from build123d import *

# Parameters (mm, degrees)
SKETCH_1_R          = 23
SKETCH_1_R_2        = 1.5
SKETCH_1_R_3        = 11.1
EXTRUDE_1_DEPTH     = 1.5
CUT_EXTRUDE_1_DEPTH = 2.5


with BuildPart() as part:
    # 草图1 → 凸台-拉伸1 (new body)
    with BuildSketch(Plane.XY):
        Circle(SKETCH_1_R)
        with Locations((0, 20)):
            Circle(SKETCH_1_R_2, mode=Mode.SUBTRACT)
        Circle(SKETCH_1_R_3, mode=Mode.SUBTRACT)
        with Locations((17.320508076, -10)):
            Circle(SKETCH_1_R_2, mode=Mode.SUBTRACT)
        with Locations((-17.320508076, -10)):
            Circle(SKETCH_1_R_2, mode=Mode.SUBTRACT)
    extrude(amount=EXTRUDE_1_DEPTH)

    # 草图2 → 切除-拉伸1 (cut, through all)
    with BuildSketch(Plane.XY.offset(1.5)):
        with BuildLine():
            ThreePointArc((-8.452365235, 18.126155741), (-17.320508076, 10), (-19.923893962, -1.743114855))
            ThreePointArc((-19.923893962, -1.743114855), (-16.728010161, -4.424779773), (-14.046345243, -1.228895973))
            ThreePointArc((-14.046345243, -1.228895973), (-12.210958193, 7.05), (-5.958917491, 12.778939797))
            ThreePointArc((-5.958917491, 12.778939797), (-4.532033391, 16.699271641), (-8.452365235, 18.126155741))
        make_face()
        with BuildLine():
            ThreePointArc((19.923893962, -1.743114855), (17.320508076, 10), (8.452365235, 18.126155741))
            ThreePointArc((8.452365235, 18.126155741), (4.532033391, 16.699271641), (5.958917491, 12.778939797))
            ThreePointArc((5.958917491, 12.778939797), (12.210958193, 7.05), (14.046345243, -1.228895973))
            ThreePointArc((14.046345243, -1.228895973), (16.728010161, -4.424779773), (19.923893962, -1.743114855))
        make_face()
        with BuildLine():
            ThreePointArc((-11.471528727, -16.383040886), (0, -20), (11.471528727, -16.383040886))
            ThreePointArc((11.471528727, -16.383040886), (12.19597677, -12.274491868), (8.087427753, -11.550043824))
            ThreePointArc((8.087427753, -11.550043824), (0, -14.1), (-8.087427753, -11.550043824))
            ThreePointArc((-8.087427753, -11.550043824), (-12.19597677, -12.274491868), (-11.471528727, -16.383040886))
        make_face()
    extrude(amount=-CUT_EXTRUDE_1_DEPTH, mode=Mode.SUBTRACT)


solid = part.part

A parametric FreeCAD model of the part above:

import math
import FreeCAD as App
import Part
import Sketcher

V = App.Vector

doc = App.newDocument("Part")
body = doc.addObject("PartDesign::Body", "Body")

sketch1 = doc.addObject("Sketcher::SketchObject", "Sketch")
body.addObject(sketch1)
sketch1.AttachmentSupport = (doc.XY_Plane, [""])
sketch1.MapMode = "FlatFace"
sketch1.addGeometry([
    Part.Circle(V(0, 0, 0), V(0, 0, 1), 23),
    Part.Circle(V(-17.320508, -10, 0), V(0, 0, 1), 1.5),
    Part.Circle(V(17.320508, -10, 0), V(0, 0, 1), 1.5),
    Part.Circle(V(0, 0, 0), V(0, 0, 1), 11.1),
    Part.Circle(V(0, 20, 0), V(0, 0, 1), 1.5),
], False)
sketch1.addConstraint([
    Sketcher.Constraint("Coincident", 0, 3, -1, 1),
    Sketcher.Constraint("Coincident", 3, 3, -1, 1),
    Sketcher.Constraint("Equal", 1, 2),
    Sketcher.Constraint("Equal", 2, 4),
    Sketcher.Constraint("Symmetric", 1, 3, 2, 3, -2),
    Sketcher.Constraint("PointOnObject", 4, 3, -2),
    Sketcher.Constraint("Diameter", 0, 46.0),
    Sketcher.Constraint("Diameter", 1, 3.0),
    Sketcher.Constraint("Diameter", 3, 22.2),
    Sketcher.Constraint("DistanceY", 1, 3, -1, 1, 10.0),
    Sketcher.Constraint("DistanceY", -1, 1, 4, 3, 20.0),
    Sketcher.Constraint("DistanceX", 1, 3, -1, 1, 17.320508),
])
pad1 = doc.addObject("PartDesign::Pad", "Pad")
body.addObject(pad1)
pad1.Profile = sketch1
pad1.Length = 1.5

sketch2 = doc.addObject("Sketcher::SketchObject", "Sketch001")
body.addObject(sketch2)
sketch2.AttachmentSupport = (doc.XY_Plane, [""])
sketch2.MapMode = "FlatFace"
sketch2.AttachmentOffset = App.Placement(V(0, 0, 1.5), App.Rotation())
sketch2.addGeometry([
    Part.ArcOfCircle(Part.Circle(V(0, 0, 0), V(0, 0, 1), 20), math.radians(115), math.radians(185)),
    Part.ArcOfCircle(Part.Circle(V(-16.98512, -1.486005, 0), V(0, 0, 1), 2.95), math.radians(-175), math.radians(5)),
    Part.ArcOfCircle(Part.Circle(V(0, 0, 0), V(0, 0, 1), 14.1), math.radians(115), math.radians(185)),
    Part.ArcOfCircle(Part.Circle(V(-7.205641, 15.452548, 0), V(0, 0, 1), 2.95), math.radians(-65), math.radians(115)),
    Part.ArcOfCircle(Part.Circle(V(0, 0, 0), V(0, 0, 1), 20), math.radians(-5), math.radians(65)),
    Part.ArcOfCircle(Part.Circle(V(7.205641, 15.452548, 0), V(0, 0, 1), 2.95), math.radians(65), math.radians(245)),
    Part.ArcOfCircle(Part.Circle(V(0, 0, 0), V(0, 0, 1), 14.1), math.radians(-5), math.radians(65)),
    Part.ArcOfCircle(Part.Circle(V(16.98512, -1.486005, 0), V(0, 0, 1), 2.95), math.radians(175), math.radians(355)),
    Part.ArcOfCircle(Part.Circle(V(0, 0, 0), V(0, 0, 1), 20), math.radians(-125), math.radians(-55)),
    Part.ArcOfCircle(Part.Circle(V(9.779478, -13.966542, 0), V(0, 0, 1), 2.95), math.radians(-55), math.radians(125)),
    Part.ArcOfCircle(Part.Circle(V(0, 0, 0), V(0, 0, 1), 14.1), math.radians(-125), math.radians(-55)),
    Part.ArcOfCircle(Part.Circle(V(-9.779478, -13.966542, 0), V(0, 0, 1), 2.95), math.radians(55), math.radians(235)),
], False)
sketch2.addConstraint([
    Sketcher.Constraint("Tangent", 0, 2, 1, 1),
    Sketcher.Constraint("Tangent", 1, 2, 2, 2),
    Sketcher.Constraint("Tangent", 2, 1, 3, 1),
    Sketcher.Constraint("Tangent", 3, 2, 0, 1),
    Sketcher.Constraint("Tangent", 4, 2, 5, 1),
    Sketcher.Constraint("Tangent", 5, 2, 6, 2),
    Sketcher.Constraint("Tangent", 6, 1, 7, 1),
    Sketcher.Constraint("Tangent", 7, 2, 4, 1),
    Sketcher.Constraint("Tangent", 8, 2, 9, 1),
    Sketcher.Constraint("Tangent", 9, 2, 10, 2),
    Sketcher.Constraint("Tangent", 10, 1, 11, 1),
    Sketcher.Constraint("Tangent", 11, 2, 8, 1),
    Sketcher.Constraint("Coincident", 0, 3, -1, 1),
    Sketcher.Constraint("Coincident", 2, 3, -1, 1),
    Sketcher.Constraint("Coincident", 4, 3, -1, 1),
    Sketcher.Constraint("Coincident", 6, 3, -1, 1),
    Sketcher.Constraint("Coincident", 8, 3, -1, 1),
    Sketcher.Constraint("Coincident", 10, 3, -1, 1),
    Sketcher.Constraint("Equal", 0, 4),
    Sketcher.Constraint("Equal", 3, 5),
    Sketcher.Constraint("Equal", 4, 8),
    Sketcher.Constraint("Equal", 7, 9),
    Sketcher.Constraint("Horizontal", 3, 3, 5, 3),
    Sketcher.Constraint("Horizontal", 1, 3, 7, 3),
    Sketcher.Constraint("Horizontal", 9, 3, 11, 3),
    Sketcher.Constraint("Radius", 0, 20.0),
    Sketcher.Constraint("Radius", 2, 14.1),
    Sketcher.Constraint("DistanceY", 8, 2, 9, 3, 2.416499),
    Sketcher.Constraint("DistanceX", 1, 3, -1, 1, 16.98512),
    Sketcher.Constraint("DistanceX", 3, 3, -1, 1, 7.205641),
])
pocket1 = doc.addObject("PartDesign::Pocket", "Pocket")
body.addObject(pocket1)
pocket1.Profile = sketch2
pocket1.Type = "ThroughAll"

doc.recompute()
